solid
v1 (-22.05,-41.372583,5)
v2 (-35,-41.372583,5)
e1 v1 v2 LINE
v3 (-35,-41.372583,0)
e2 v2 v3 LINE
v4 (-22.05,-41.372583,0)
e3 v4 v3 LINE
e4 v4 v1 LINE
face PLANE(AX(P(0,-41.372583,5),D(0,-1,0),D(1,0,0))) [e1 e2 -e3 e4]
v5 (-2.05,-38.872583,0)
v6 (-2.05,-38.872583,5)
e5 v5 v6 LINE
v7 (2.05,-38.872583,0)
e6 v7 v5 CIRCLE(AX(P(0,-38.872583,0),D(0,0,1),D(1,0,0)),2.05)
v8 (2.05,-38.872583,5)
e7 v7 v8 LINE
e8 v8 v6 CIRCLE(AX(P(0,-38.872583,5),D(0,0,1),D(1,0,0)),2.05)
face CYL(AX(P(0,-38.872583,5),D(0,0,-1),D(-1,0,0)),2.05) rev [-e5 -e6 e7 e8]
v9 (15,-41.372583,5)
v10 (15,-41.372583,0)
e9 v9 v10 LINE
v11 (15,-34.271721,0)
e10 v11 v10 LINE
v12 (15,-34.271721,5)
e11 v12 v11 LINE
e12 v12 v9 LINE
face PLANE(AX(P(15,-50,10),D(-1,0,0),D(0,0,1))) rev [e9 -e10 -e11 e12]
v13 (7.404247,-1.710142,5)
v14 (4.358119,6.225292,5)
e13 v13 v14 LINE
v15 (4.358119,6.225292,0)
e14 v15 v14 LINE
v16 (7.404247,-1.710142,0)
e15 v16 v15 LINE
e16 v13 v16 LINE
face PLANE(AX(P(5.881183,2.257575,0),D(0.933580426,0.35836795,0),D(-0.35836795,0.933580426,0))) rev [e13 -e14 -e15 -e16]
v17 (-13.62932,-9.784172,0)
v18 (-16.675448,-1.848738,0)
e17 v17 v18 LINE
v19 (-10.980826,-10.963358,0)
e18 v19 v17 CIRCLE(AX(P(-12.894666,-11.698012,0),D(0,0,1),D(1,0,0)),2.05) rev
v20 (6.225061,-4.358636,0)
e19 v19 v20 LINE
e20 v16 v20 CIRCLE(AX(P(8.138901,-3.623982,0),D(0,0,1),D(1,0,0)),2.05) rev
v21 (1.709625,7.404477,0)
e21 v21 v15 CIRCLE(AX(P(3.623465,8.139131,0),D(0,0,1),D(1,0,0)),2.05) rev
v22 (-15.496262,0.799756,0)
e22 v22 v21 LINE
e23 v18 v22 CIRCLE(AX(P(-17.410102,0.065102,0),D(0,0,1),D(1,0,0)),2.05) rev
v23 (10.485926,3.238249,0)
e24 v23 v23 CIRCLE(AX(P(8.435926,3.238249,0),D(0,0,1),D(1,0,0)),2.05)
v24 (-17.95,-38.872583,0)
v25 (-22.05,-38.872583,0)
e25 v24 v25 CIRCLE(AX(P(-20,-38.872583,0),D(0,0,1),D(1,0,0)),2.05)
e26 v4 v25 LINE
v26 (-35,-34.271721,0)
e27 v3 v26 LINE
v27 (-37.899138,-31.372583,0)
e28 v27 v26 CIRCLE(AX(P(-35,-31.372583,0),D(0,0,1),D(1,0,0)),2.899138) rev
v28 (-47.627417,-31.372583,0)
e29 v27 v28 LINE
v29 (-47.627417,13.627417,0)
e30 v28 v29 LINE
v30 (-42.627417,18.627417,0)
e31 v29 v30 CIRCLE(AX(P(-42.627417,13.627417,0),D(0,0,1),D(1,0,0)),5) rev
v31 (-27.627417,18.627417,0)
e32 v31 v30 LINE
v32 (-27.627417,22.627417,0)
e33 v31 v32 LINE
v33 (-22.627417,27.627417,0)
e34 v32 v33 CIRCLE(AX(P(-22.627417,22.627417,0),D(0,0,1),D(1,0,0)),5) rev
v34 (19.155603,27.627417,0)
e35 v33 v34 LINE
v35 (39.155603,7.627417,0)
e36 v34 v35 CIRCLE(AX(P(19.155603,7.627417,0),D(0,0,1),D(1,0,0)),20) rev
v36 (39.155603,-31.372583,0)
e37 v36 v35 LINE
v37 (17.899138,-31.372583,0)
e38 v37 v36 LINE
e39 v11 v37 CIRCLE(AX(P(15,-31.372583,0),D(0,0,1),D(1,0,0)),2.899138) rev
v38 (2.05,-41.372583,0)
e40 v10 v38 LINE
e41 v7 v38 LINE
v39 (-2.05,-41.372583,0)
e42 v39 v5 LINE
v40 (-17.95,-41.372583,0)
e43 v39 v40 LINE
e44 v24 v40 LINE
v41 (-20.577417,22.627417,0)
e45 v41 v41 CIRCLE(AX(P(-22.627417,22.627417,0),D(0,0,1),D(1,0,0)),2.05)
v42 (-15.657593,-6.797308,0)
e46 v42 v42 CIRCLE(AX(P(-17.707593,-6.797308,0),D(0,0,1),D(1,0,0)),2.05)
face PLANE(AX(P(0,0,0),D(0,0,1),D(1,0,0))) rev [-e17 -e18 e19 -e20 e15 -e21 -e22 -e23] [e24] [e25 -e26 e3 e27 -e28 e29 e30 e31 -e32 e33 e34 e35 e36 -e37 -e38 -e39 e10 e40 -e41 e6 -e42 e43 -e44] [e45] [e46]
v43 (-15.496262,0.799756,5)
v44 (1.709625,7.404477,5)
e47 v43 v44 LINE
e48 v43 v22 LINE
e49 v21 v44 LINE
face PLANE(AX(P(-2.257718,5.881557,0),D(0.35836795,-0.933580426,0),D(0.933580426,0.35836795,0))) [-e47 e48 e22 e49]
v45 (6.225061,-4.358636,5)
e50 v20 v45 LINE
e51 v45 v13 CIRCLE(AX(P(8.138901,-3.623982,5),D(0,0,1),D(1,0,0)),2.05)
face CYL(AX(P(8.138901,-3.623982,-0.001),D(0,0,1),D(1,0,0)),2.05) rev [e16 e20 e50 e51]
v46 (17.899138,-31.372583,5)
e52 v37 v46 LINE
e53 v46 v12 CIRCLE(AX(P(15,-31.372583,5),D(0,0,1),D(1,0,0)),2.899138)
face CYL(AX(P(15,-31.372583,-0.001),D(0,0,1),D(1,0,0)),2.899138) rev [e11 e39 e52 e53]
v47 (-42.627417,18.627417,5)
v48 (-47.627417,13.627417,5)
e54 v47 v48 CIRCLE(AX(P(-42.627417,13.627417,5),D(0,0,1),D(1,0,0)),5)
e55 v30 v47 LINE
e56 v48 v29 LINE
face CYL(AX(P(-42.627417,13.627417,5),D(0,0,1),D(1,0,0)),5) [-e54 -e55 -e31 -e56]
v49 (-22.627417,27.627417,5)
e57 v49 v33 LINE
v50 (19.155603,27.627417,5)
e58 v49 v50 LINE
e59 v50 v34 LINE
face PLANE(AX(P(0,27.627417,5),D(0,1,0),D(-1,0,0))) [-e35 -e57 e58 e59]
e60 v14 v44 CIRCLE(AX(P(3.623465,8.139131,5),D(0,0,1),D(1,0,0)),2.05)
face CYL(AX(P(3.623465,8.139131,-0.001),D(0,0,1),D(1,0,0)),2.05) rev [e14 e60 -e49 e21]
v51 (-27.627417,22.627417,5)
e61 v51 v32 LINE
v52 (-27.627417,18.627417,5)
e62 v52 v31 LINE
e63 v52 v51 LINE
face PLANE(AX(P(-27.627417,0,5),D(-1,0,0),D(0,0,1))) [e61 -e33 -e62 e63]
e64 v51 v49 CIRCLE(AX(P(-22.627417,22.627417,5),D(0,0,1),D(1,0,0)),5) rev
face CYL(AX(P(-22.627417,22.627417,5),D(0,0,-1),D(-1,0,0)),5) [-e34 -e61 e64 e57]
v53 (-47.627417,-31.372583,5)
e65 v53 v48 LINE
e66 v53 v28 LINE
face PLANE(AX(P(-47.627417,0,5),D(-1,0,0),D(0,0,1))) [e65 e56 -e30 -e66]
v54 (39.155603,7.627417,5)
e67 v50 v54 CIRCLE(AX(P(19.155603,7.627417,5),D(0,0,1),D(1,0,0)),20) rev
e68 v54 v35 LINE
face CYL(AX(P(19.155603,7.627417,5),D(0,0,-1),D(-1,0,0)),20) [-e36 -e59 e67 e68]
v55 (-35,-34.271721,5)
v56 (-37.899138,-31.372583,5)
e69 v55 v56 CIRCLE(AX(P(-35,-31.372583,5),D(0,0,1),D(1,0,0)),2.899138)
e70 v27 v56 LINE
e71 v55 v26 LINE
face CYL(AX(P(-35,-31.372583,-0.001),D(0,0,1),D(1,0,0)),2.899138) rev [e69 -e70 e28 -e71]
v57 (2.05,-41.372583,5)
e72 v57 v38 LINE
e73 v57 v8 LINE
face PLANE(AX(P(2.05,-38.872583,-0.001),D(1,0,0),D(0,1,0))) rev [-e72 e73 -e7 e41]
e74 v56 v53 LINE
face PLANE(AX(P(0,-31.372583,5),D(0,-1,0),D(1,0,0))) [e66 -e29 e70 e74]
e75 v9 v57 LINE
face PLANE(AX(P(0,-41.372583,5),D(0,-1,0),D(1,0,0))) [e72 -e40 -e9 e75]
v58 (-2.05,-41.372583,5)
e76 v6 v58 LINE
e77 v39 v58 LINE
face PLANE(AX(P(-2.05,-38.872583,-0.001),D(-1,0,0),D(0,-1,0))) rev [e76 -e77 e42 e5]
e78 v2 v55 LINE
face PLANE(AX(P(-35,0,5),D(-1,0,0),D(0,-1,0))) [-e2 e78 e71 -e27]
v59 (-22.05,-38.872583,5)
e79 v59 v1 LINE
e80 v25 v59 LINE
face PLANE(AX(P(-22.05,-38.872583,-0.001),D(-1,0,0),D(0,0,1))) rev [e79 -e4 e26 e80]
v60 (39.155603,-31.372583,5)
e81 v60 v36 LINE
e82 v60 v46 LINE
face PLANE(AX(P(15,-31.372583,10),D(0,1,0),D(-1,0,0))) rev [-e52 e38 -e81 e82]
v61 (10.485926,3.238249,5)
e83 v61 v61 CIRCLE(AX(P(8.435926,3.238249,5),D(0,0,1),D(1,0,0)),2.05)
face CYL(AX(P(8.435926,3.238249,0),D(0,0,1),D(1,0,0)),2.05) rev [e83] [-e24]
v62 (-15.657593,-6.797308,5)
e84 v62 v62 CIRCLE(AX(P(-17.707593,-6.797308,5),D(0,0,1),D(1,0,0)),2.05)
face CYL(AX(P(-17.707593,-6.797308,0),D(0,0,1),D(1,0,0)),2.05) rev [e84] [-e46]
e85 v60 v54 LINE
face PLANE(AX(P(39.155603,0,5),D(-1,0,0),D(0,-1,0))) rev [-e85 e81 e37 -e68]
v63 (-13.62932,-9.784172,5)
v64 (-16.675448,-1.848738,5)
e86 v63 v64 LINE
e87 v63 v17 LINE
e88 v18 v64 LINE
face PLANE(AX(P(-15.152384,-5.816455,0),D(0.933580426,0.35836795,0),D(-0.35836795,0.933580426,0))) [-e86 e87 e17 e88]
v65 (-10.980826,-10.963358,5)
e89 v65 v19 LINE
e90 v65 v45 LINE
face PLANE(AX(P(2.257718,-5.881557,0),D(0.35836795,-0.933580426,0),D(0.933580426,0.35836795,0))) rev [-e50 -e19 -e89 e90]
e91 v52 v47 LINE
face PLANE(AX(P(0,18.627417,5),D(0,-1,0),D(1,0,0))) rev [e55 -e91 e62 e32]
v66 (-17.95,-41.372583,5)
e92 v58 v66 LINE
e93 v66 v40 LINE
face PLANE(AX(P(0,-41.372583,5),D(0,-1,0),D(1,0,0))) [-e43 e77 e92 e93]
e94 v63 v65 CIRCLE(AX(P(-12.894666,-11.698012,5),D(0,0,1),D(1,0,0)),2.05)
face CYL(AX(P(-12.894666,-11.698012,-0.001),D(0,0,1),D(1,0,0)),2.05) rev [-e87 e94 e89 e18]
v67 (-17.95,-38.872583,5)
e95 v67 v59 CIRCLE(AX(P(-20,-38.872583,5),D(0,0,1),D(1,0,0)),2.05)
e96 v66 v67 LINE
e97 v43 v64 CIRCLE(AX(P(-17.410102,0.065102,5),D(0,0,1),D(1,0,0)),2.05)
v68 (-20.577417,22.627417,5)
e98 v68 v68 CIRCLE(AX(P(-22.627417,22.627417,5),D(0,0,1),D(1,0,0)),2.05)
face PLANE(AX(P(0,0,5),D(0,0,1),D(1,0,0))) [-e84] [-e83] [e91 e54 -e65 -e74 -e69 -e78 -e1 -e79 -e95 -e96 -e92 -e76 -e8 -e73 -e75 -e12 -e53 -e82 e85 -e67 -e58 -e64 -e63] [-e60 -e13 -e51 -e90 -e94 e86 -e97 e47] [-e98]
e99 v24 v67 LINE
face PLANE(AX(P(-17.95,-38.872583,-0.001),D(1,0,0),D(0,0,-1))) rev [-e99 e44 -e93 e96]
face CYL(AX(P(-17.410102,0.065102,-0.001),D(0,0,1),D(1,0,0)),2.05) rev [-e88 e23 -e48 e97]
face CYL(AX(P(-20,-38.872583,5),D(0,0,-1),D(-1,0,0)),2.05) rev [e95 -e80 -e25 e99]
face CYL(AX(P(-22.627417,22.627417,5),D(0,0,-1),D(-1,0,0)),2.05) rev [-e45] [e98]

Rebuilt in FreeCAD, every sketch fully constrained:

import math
import FreeCAD as App
import Part
import Sketcher
Q = App.Units.Quantity


def edges_at(feature, points):
    """Names of the edges that pass closest to the given points."""
    edges = feature.Shape.Edges
    near = lambda p: min(range(len(edges)), key=lambda i: edges[i].distToShape(Part.Vertex(*p))[0])
    return sorted({f"Edge{near(p) + 1}" for p in points})


def add_polygon(sketch, points):
    """Adds a closed chain of lines whose ends are joined by coincident constraints."""
    first, n = sketch.GeometryCount, len(points)
    for a, b in zip(points, points[1:] + points[:1]):
        sketch.addGeometry(Part.LineSegment(App.Vector(*a, 0), App.Vector(*b, 0)), False)
    for i in range(n):
        sketch.addConstraint(Sketcher.Constraint("Coincident", first + i, 2, first + (i + 1) % n, 1))

doc = App.newDocument("Part")
body = doc.addObject("PartDesign::Body", "Body")

# Sketch on XY plane
sketch1 = doc.addObject("Sketcher::SketchObject", "Sketch")
body.addObject(sketch1)
sketch1.AttachmentSupport = (doc.XY_Plane, [""])
sketch1.MapMode = "FlatFace"
sketch1.addGeometry([
    Part.LineSegment(App.Vector(-35, -41.4, 0), App.Vector(39.2, -41.4, 0)),  # 0
    Part.LineSegment(App.Vector(39.2, -41.4, 0), App.Vector(39.2, 7.6, 0)),  # 1
    Part.ArcOfCircle(Part.Circle(App.Vector(19.2, 7.6, 0), App.Vector(0, 0, 1), 20), math.radians(0), math.radians(90)),  # 2
    Part.LineSegment(App.Vector(19.2, 27.6, 0), App.Vector(-22.6, 27.6, 0)),  # 3
    Part.ArcOfCircle(Part.Circle(App.Vector(-22.6, 22.6, 0), App.Vector(0, 0, 1), 5), math.radians(90), math.radians(180)),  # 4
    Part.LineSegment(App.Vector(-27.6, 22.6, 0), App.Vector(-27.6, 18.6, 0)),  # 5
    Part.LineSegment(App.Vector(-27.6, 18.6, 0), App.Vector(-47.6, 18.6, 0)),  # 6
    Part.LineSegment(App.Vector(-47.6, 18.6, 0), App.Vector(-47.6, -31.4, 0)),  # 7
    Part.LineSegment(App.Vector(-47.6, -31.4, 0), App.Vector(-35, -31.4, 0)),  # 8
    Part.LineSegment(App.Vector(-35, -31.4, 0), App.Vector(-35, -41.4, 0)),  # 9
    Part.Circle(App.Vector(0, -38.9, 0), App.Vector(0, 0, 1), 2),  # 10
    Part.Circle(App.Vector(-20, -38.9, 0), App.Vector(0, 0, 1), 2),  # 11
    Part.Circle(App.Vector(0, 0, 0), App.Vector(0, 0, 1), 2.5),  # 12
    Part.Circle(App.Vector(-22.6, 22.6, 0), App.Vector(0, 0, 1), 2),  # 13
], False)
sketch1.addConstraint([
    Sketcher.Constraint("Coincident", 0, 2, 1, 1),
    Sketcher.Constraint("Tangent", 1, 2, 2, 1),
    Sketcher.Constraint("Tangent", 2, 2, 3, 1),
    Sketcher.Constraint("Tangent", 3, 2, 4, 1),
    Sketcher.Constraint("Tangent", 4, 2, 5, 1),
    Sketcher.Constraint("Coincident", 5, 2, 6, 1),
    Sketcher.Constraint("Coincident", 6, 2, 7, 1),
    Sketcher.Constraint("Coincident", 7, 2, 8, 1),
    Sketcher.Constraint("Coincident", 8, 2, 9, 1),
    Sketcher.Constraint("Coincident", 9, 2, 0, 1),
    Sketcher.Constraint("Horizontal", 0),
    Sketcher.Constraint("Vertical", 1),
    Sketcher.Constraint("Horizontal", 3),
    Sketcher.Constraint("Vertical", 5),
    Sketcher.Constraint("Horizontal", 6),
    Sketcher.Constraint("Vertical", 7),
    Sketcher.Constraint("Horizontal", 8),
    Sketcher.Constraint("Vertical", 9),
    Sketcher.Constraint("Coincident", 12, 3, -1, 1),
    Sketcher.Constraint("Coincident", 13, 3, 4, 3),
    Sketcher.Constraint("Equal", 10, 11),
    Sketcher.Constraint("Equal", 11, 13),
    Sketcher.Constraint("PointOnObject", 10, 3, -2),
    Sketcher.Constraint("Horizontal", 10, 3, 11, 3),
    Sketcher.Constraint("Diameter", 12, 5.0),
    Sketcher.Constraint("Radius", 2, 20.0),
    Sketcher.Constraint("Radius", 4, 5.0),
    Sketcher.Constraint("Diameter", 10, 4.1),
    Sketcher.Constraint("DistanceX", 6, 2, 6, 1, 20.0),
    Sketcher.Constraint("DistanceY", 1, 1, 1, 2, 49.0),
    Sketcher.Constraint("DistanceY", 5, 2, 5, 1, 4.0),
    Sketcher.Constraint("DistanceY", 7, 2, 7, 1, 50.0),
    Sketcher.Constraint("DistanceX", 11, 3, -1, 1, 20.0),
    Sketcher.Constraint("DistanceX", 8, 2, -1, 1, 35.0),
    Sketcher.Constraint("DistanceY", 10, 3, 2, 3, 46.5),
    Sketcher.Constraint("DistanceX", 3, 2, 3, 1, 41.78302),
    Sketcher.Constraint("DistanceX", 0, 1, 0, 2, 74.155603),
    Sketcher.Constraint("DistanceY", -1, 1, 2, 3, 7.627417),
])
pad1 = doc.addObject("PartDesign::Pad", "Pad")
body.addObject(pad1)
pad1.Profile = sketch1
pad1.Length = 5

# Sketch on XY plane
sketch2 = doc.addObject("Sketcher::SketchObject", "Sketch001")
body.addObject(sketch2)
sketch2.AttachmentSupport = (doc.XY_Plane, [""])
sketch2.MapMode = "FlatFace"
sketch2.AttachmentOffset = App.Placement(App.Vector(0, 0, 5), App.Rotation())
sketch2.addGeometry(Part.Circle(App.Vector(-17.7, -6.8, 0), App.Vector(0, 0, 1), 2), False)  # 0
sketch2.addGeometry(Part.Circle(App.Vector(8.4, 3.2, 0), App.Vector(0, 0, 1), 2), False)  # 1
add_polygon(sketch2, [(-12.9, -11.7), (8.1, -3.6), (3.6, 8.1), (-17.4, 0.1)])  # lines 2-5
sketch2.addConstraint([
    Sketcher.Constraint("Equal", 0, 1),
    Sketcher.Constraint("Perpendicular", 2, 3),
    Sketcher.Constraint("Perpendicular", 3, 4),
    Sketcher.Constraint("Perpendicular", 4, 5),
    Sketcher.Constraint("Diameter", 0, 4.1),
    Sketcher.Constraint("Angle", 2, Q("21 deg")),
    Sketcher.Constraint("Distance", 3, 12.6),
    Sketcher.Constraint("Distance", 2, 22.53),
    Sketcher.Constraint("DistanceX", -1, 1, 2, 2, 8.138901),
    Sketcher.Constraint("DistanceY", -1, 1, 4, 2, 0.065102),
    Sketcher.Constraint("DistanceY", 0, 3, -1, 1, 6.797308),
    Sketcher.Constraint("DistanceY", -1, 1, 1, 3, 3.238249),
    Sketcher.Constraint("DistanceX", 0, 3, 1, 3, 26.143519),
    Sketcher.Constraint("DistanceX", 3, 2, 1, 3, 4.812461),
])
pocket1 = doc.addObject("PartDesign::Pocket", "Pocket")
body.addObject(pocket1)
pocket1.Profile = sketch2
pocket1.Type = "ThroughAll"

# Sketch on XY plane
sketch3 = doc.addObject("Sketcher::SketchObject", "Sketch002")
body.addObject(sketch3)
sketch3.AttachmentSupport = (doc.XY_Plane, [""])
sketch3.MapMode = "FlatFace"
add_polygon(sketch3, [(39, -31), (39, -50), (15, -50), (15, -31)])  # lines 0-3
sketch3.addConstraint([
    Sketcher.Constraint("Vertical", 0),
    Sketcher.Constraint("Horizontal", 1),
    Sketcher.Constraint("Vertical", 2),
    Sketcher.Constraint("Horizontal", 3),
    Sketcher.Constraint("DistanceY", 0, 2, -1, 1, 50.0),
    Sketcher.Constraint("DistanceX", -1, 1, 1, 2, 15.0),
    Sketcher.Constraint("DistanceX", 1, 2, 1, 1, 24.155603),
    Sketcher.Constraint("DistanceY", 0, 2, 0, 1, 18.627417),
])
pocket2 = doc.addObject("PartDesign::Pocket", "Pocket001")
body.addObject(pocket2)
pocket2.Profile = sketch3
pocket2.Length = 10
pocket2.Reversed = True
doc.recompute()

fillet = doc.addObject("PartDesign::Fillet", "Fillet")
body.addObject(fillet)
fillet.Base = (pocket2, edges_at(pocket2, [(-47.627, 18.627, 2.5)]))
fillet.Radius = 5

# Sketch on XY plane
sketch4 = doc.addObject("Sketcher::SketchObject", "Sketch003")
body.addObject(sketch4)
sketch4.AttachmentSupport = (doc.XY_Plane, [""])
sketch4.MapMode = "FlatFace"
sketch4.AttachmentOffset = App.Placement(App.Vector(0, 0, 5), App.Rotation())
sketch4.addGeometry(Part.Circle(App.Vector(-35, -31.4, 0), App.Vector(0, 0, 1), 2.9), False)
sketch4.addConstraint([
    Sketcher.Constraint("DistanceX", 0, 3, -1, 1, 35.0),
    Sketcher.Constraint("Diameter", 0, 5.798276),
    Sketcher.Constraint("DistanceY", 0, 3, -1, 1, 31.372583),
])
pocket3 = doc.addObject("PartDesign::Pocket", "Pocket002")
body.addObject(pocket3)
pocket3.Profile = sketch4
pocket3.Type = "UpToFirst"

# Sketch on XY plane
sketch5 = doc.addObject("Sketcher::SketchObject", "Sketch004")
body.addObject(sketch5)
sketch5.AttachmentSupport = (doc.XY_Plane, [""])
sketch5.MapMode = "FlatFace"
sketch5.AttachmentOffset = App.Placement(App.Vector(0, 0, 5), App.Rotation())
sketch5.addGeometry(Part.Circle(App.Vector(15, -31.4, 0), App.Vector(0, 0, 1), 2.9), False)
sketch5.addConstraint([
    Sketcher.Constraint("DistanceX", -1, 1, 0, 3, 15.0),
    Sketcher.Constraint("Diameter", 0, 5.798276),
    Sketcher.Constraint("DistanceY", 0, 3, -1, 1, 31.372583),
])
pocket4 = doc.addObject("PartDesign::Pocket", "Pocket003")
body.addObject(pocket4)
pocket4.Profile = sketch5
pocket4.Type = "UpToFirst"

# Sketch on XY plane
sketch6 = doc.addObject("Sketcher::SketchObject", "Sketch005")
body.addObject(sketch6)
sketch6.AttachmentSupport = (doc.XY_Plane, [""])
sketch6.MapMode = "FlatFace"
sketch6.AttachmentOffset = App.Placement(App.Vector(0, 0, 5), App.Rotation())
sketch6.addGeometry([
    Part.LineSegment(App.Vector(-17.9, -41.4, 0), App.Vector(-17.9, -38.9, 0)),
    Part.ArcOfCircle(Part.Circle(App.Vector(-20, -38.9, 0), App.Vector(0, 0, 1), 2), math.radians(0), math.radians(180)),
    Part.LineSegment(App.Vector(-22.1, -38.9, 0), App.Vector(-22.1, -41.4, 0)),
    Part.ArcOfCircle(Part.Circle(App.Vector(-20, -41.4, 0), App.Vector(0, 0, 1), 2), math.radians(180), math.radians(360)),
], False)
sketch6.addConstraint([
    Sketcher.Constraint("Tangent", 0, 2, 1, 1),
    Sketcher.Constraint("Tangent", 1, 2, 2, 1),
    Sketcher.Constraint("Tangent", 2, 2, 3, 1),
    Sketcher.Constraint("Tangent", 3, 2, 0, 1),
    Sketcher.Constraint("Vertical", 0),
    Sketcher.Constraint("Vertical", 2),
    Sketcher.Constraint("Radius", 1, 2.05),
    Sketcher.Constraint("DistanceY", 0, 1, 0, 2, 2.5),
    Sketcher.Constraint("DistanceX", 1, 3, -1, 1, 20.0),
    Sketcher.Constraint("DistanceY", 1, 3, -1, 1, 38.872583),
])
pocket5 = doc.addObject("PartDesign::Pocket", "Pocket004")
body.addObject(pocket5)
pocket5.Profile = sketch6
pocket5.Length = 5

# Sketch on XY plane
sketch7 = doc.addObject("Sketcher::SketchObject", "Sketch006")
body.addObject(sketch7)
sketch7.AttachmentSupport = (doc.XY_Plane, [""])
sketch7.MapMode = "FlatFace"
sketch7.AttachmentOffset = App.Placement(App.Vector(0, 0, 5), App.Rotation())
sketch7.addGeometry([
    Part.LineSegment(App.Vector(2, -41.4, 0), App.Vector(2, -38.9, 0)),
    Part.ArcOfCircle(Part.Circle(App.Vector(0, -38.9, 0), App.Vector(0, 0, 1), 2), math.radians(0), math.radians(180)),
    Part.LineSegment(App.Vector(-2, -38.9, 0), App.Vector(-2, -41.4, 0)),
    Part.ArcOfCircle(Part.Circle(App.Vector(0, -41.4, 0), App.Vector(0, 0, 1), 2), math.radians(180), math.radians(360)),
], False)
sketch7.addConstraint([
    Sketcher.Constraint("Tangent", 0, 2, 1, 1),
    Sketcher.Constraint("Tangent", 1, 2, 2, 1),
    Sketcher.Constraint("Tangent", 2, 2, 3, 1),
    Sketcher.Constraint("Tangent", 3, 2, 0, 1),
    Sketcher.Constraint("Vertical", 0),
    Sketcher.Constraint("Vertical", 2),
    Sketcher.Constraint("PointOnObject", 1, 3, -2),
    Sketcher.Constraint("Radius", 1, 2.05),
    Sketcher.Constraint("DistanceY", 0, 1, 0, 2, 2.5),
    Sketcher.Constraint("DistanceY", 1, 3, -1, 1, 38.872583),
])
pocket6 = doc.addObject("PartDesign::Pocket", "Pocket005")
body.addObject(pocket6)
pocket6.Profile = sketch7
pocket6.Length = 5

# Sketch on XY plane
sketch8 = doc.addObject("Sketcher::SketchObject", "Sketch007")
body.addObject(sketch8)
sketch8.AttachmentSupport = (doc.XY_Plane, [""])
sketch8.MapMode = "FlatFace"
sketch8.AttachmentOffset = App.Placement(App.Vector(0, 0, 5), App.Rotation())
sketch8.addGeometry(Part.Circle(App.Vector(-12.9, -11.7, 0), App.Vector(0, 0, 1), 2), False)
sketch8.addConstraint([
    Sketcher.Constraint("Diameter", 0, 4.1),
    Sketcher.Constraint("DistanceY", 0, 3, -1, 1, 11.698012),
    Sketcher.Constraint("DistanceX", 0, 3, -1, 1, 12.894666),
])
pocket7 = doc.addObject("PartDesign::Pocket", "Pocket006")
body.addObject(pocket7)
pocket7.Profile = sketch8
pocket7.Type = "UpToFirst"

# Sketch on XY plane
sketch9 = doc.addObject("Sketcher::SketchObject", "Sketch008")
body.addObject(sketch9)
sketch9.AttachmentSupport = (doc.XY_Plane, [""])
sketch9.MapMode = "FlatFace"
sketch9.AttachmentOffset = App.Placement(App.Vector(0, 0, 5), App.Rotation())
sketch9.addGeometry(Part.Circle(App.Vector(8.1, -3.6, 0), App.Vector(0, 0, 1), 2), False)
sketch9.addConstraint([
    Sketcher.Constraint("Diameter", 0, 4.1),
    Sketcher.Constraint("DistanceX", -1, 1, 0, 3, 8.138901),
    Sketcher.Constraint("DistanceY", 0, 3, -1, 1, 3.623982),
])
pocket8 = doc.addObject("PartDesign::Pocket", "Pocket007")
body.addObject(pocket8)
pocket8.Profile = sketch9
pocket8.Type = "UpToFirst"

# Sketch on XY plane
sketch10 = doc.addObject("Sketcher::SketchObject", "Sketch009")
body.addObject(sketch10)
sketch10.AttachmentSupport = (doc.XY_Plane, [""])
sketch10.MapMode = "FlatFace"
sketch10.AttachmentOffset = App.Placement(App.Vector(0, 0, 5), App.Rotation())
sketch10.addGeometry(Part.Circle(App.Vector(3.6, 8.1, 0), App.Vector(0, 0, 1), 2), False)
sketch10.addConstraint([
    Sketcher.Constraint("Diameter", 0, 4.1),
    Sketcher.Constraint("DistanceY", -1, 1, 0, 3, 8.139131),
    Sketcher.Constraint("DistanceX", -1, 1, 0, 3, 3.623465),
])
pocket9 = doc.addObject("PartDesign::Pocket", "Pocket008")
body.addObject(pocket9)
pocket9.Profile = sketch10
pocket9.Type = "UpToFirst"

# Sketch on XY plane
sketch11 = doc.addObject("Sketcher::SketchObject", "Sketch010")
body.addObject(sketch11)
sketch11.AttachmentSupport = (doc.XY_Plane, [""])
sketch11.MapMode = "FlatFace"
sketch11.AttachmentOffset = App.Placement(App.Vector(0, 0, 5), App.Rotation())
sketch11.addGeometry(Part.Circle(App.Vector(-17.4, 0.1, 0), App.Vector(0, 0, 1), 2), False)
sketch11.addConstraint([
    Sketcher.Constraint("Diameter", 0, 4.1),
    Sketcher.Constraint("DistanceX", 0, 3, -1, 1, 17.410102),
    Sketcher.Constraint("DistanceY", -1, 1, 0, 3, 0.065102),
])
pocket10 = doc.addObject("PartDesign::Pocket", "Pocket009")
body.addObject(pocket10)
pocket10.Profile = sketch11
pocket10.Type = "UpToFirst"

doc.recompute()
